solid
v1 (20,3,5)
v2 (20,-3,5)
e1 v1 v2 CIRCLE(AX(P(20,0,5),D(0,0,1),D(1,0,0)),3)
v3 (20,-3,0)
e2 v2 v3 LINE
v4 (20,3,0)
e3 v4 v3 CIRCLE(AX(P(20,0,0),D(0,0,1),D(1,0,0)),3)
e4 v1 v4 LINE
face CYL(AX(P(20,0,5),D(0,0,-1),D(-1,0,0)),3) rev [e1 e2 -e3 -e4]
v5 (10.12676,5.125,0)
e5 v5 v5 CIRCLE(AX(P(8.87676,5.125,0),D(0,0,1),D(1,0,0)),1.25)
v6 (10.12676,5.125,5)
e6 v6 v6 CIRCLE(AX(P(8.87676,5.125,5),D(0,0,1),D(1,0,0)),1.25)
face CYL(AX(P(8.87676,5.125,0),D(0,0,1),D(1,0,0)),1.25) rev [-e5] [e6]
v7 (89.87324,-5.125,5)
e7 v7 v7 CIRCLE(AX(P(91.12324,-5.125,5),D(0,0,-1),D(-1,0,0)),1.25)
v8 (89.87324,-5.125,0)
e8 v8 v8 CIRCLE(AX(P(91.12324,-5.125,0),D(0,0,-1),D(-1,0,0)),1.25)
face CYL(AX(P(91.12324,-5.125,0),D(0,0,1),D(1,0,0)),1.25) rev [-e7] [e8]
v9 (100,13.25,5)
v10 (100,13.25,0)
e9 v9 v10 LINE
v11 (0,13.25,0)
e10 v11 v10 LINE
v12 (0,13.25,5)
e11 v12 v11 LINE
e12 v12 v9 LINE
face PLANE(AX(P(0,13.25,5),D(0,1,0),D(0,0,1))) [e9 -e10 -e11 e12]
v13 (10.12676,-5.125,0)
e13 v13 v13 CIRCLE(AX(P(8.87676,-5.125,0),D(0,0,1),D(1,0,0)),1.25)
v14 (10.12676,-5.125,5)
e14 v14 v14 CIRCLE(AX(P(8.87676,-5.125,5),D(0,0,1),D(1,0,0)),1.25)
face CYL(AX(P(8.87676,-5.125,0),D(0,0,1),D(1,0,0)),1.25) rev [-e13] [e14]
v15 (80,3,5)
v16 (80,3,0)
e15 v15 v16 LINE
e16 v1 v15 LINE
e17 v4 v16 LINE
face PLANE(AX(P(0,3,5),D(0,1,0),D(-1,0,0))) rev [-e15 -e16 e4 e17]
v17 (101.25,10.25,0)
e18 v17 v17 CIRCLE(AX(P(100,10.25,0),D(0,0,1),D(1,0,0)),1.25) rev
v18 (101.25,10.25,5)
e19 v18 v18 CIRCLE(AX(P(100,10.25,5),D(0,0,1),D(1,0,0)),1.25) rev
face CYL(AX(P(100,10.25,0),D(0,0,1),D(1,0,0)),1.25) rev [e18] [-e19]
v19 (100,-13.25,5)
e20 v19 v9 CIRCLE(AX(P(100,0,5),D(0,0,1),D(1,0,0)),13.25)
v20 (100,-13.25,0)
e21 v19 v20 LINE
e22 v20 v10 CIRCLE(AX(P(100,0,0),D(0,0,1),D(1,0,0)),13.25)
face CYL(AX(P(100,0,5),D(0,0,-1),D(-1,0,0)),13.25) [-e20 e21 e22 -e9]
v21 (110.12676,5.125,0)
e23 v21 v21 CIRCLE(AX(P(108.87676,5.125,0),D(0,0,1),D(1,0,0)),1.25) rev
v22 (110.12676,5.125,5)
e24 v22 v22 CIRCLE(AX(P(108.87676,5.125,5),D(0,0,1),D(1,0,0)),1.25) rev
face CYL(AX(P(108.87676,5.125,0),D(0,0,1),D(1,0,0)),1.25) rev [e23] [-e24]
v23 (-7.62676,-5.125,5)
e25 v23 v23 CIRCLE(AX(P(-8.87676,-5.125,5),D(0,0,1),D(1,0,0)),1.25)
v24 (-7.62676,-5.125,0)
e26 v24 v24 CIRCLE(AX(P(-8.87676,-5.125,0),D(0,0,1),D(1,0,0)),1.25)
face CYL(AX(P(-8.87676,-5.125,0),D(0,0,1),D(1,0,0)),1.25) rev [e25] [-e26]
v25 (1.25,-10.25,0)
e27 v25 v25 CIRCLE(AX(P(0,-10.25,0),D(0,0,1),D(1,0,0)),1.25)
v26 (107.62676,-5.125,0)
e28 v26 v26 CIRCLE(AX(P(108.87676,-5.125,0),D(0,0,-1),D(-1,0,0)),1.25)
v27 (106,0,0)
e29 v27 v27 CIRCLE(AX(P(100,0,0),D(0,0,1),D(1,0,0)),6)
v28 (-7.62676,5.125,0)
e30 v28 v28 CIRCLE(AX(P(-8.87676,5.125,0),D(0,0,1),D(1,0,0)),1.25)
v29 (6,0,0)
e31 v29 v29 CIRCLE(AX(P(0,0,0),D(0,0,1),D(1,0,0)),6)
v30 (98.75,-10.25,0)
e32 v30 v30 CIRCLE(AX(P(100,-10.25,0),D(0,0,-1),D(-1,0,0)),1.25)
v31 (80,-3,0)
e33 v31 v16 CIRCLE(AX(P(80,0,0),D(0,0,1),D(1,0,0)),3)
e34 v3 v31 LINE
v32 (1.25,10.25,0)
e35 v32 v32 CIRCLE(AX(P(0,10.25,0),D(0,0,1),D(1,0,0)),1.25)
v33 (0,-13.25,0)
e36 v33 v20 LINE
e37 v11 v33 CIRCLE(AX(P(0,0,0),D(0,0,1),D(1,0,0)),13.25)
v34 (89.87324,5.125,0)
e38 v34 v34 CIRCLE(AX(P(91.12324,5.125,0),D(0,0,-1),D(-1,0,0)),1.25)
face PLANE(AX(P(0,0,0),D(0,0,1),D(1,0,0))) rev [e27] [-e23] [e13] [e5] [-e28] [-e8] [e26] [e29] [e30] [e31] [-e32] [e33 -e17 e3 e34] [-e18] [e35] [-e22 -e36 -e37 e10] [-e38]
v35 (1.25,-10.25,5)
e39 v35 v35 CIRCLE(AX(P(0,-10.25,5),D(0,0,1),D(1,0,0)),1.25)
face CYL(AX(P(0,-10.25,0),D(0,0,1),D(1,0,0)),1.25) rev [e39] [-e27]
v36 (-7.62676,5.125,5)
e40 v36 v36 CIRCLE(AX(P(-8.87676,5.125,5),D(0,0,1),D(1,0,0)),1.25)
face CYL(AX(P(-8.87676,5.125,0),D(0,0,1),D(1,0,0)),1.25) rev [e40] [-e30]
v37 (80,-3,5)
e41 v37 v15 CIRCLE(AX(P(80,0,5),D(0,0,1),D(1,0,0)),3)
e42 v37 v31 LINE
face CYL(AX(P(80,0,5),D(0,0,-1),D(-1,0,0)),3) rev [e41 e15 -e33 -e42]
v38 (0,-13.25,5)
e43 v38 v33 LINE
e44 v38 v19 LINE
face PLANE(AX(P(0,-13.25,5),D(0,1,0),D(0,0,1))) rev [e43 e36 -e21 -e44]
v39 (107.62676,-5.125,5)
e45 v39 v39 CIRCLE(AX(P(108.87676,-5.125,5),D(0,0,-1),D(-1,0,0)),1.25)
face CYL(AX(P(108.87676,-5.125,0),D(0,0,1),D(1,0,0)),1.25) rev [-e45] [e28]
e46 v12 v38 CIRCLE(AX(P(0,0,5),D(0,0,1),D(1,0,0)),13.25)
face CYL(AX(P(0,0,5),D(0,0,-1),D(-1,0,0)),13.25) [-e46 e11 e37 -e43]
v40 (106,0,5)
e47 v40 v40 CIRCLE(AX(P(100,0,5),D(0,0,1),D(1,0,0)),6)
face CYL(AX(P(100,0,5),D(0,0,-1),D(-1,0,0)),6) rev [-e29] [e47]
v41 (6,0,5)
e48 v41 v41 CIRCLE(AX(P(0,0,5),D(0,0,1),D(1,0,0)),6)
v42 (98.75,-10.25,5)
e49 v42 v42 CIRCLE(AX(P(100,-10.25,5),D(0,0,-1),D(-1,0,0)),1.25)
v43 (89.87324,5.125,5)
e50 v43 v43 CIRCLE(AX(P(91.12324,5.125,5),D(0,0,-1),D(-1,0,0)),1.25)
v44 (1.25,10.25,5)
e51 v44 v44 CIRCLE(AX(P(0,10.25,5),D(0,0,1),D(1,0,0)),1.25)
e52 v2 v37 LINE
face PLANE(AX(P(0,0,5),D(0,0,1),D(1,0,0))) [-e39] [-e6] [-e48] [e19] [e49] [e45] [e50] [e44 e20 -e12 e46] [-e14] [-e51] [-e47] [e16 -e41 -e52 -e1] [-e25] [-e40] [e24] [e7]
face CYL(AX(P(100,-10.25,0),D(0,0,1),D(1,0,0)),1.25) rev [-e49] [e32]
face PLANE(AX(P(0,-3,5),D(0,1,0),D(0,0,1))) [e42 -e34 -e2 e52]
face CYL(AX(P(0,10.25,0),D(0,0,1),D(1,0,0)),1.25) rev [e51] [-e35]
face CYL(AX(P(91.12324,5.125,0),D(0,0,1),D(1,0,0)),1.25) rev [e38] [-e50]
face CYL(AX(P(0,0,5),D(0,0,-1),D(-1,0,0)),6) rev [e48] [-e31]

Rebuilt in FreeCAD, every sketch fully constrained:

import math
import FreeCAD as App
import Part
import Sketcher

doc = App.newDocument("Part")
body = doc.addObject("PartDesign::Body", "Body")

sketch1 = body.newObject("Sketcher::SketchObject", "Sketch")
sketch1.AttachmentSupport = (doc.getObject("XY_Plane"), [""])
sketch1.MapMode = "FlatFace"
sketch1.addGeometry(Part.ArcOfCircle(Part.Circle(App.Vector(0, 0, 0), App.Vector(0, 0, 1), 13.2), math.radians(90), math.radians(270)), False)
sketch1.addGeometry(Part.LineSegment(App.Vector(0, -13.2, 0), App.Vector(100, -13.2, 0)), False)
sketch1.addGeometry(Part.ArcOfCircle(Part.Circle(App.Vector(100, 0, 0), App.Vector(0, 0, 1), 13.2), math.radians(-90), math.radians(90)), False)
sketch1.addGeometry(Part.LineSegment(App.Vector(100, 13.2, 0), App.Vector(0, 13.2, 0)), False)
sketch1.addGeometry(Part.ArcOfCircle(Part.Circle(App.Vector(80, 0, 0), App.Vector(0, 0, 1), 3), math.radians(-90), math.radians(0)), False)
sketch1.addGeometry(Part.LineSegment(App.Vector(80, -3, 0), App.Vector(20, -3, 0)), False)
sketch1.addGeometry(Part.ArcOfCircle(Part.Circle(App.Vector(20, 0, 0), App.Vector(0, 0, 1), 3), math.radians(90), math.radians(270)), False)
sketch1.addGeometry(Part.LineSegment(App.Vector(20, 3, 0), App.Vector(80, 3, 0)), False)
sketch1.addGeometry(Part.ArcOfCircle(Part.Circle(App.Vector(80, 0, 0), App.Vector(0, 0, 1), 3), math.radians(0), math.radians(90)), False)
sketch1.addGeometry(Part.Circle(App.Vector(0, 0, 0), App.Vector(0, 0, 1), 6), False)
sketch1.addGeometry(Part.Circle(App.Vector(100, 0, 0), App.Vector(0, 0, 1), 6), False)
sketch1.addConstraint(Sketcher.Constraint("Tangent", 0, 2, 1, 1))
sketch1.addConstraint(Sketcher.Constraint("Tangent", 1, 2, 2, 1))
sketch1.addConstraint(Sketcher.Constraint("Tangent", 2, 2, 3, 1))
sketch1.addConstraint(Sketcher.Constraint("Tangent", 3, 2, 0, 1))
sketch1.addConstraint(Sketcher.Constraint("Tangent", 4, 1, 5, 1))
sketch1.addConstraint(Sketcher.Constraint("Tangent", 5, 2, 6, 2))
sketch1.addConstraint(Sketcher.Constraint("Tangent", 6, 1, 7, 1))
sketch1.addConstraint(Sketcher.Constraint("Tangent", 7, 2, 8, 2))
sketch1.addConstraint(Sketcher.Constraint("Tangent", 8, 1, 4, 2))
sketch1.addConstraint(Sketcher.Constraint("Horizontal", 1))
sketch1.addConstraint(Sketcher.Constraint("Horizontal", 3))
sketch1.addConstraint(Sketcher.Constraint("Horizontal", 5))
sketch1.addConstraint(Sketcher.Constraint("Horizontal", 7))
sketch1.addConstraint(Sketcher.Constraint("Coincident", 0, 3, -1, 1))
sketch1.addConstraint(Sketcher.Constraint("Coincident", 9, 3, -1, 1))
sketch1.addConstraint(Sketcher.Constraint("Coincident", 10, 3, 2, 3))
sketch1.addConstraint(Sketcher.Constraint("Equal", 4, 6))
sketch1.addConstraint(Sketcher.Constraint("Equal", 9, 10))
sketch1.addConstraint(Sketcher.Constraint("PointOnObject", 4, 3, -1))
sketch1.addConstraint(Sketcher.Constraint("PointOnObject", 8, 1, -1))
sketch1.addConstraint(Sketcher.Constraint("Diameter", 9, 12.0))
sketch1.addConstraint(Sketcher.Constraint("Radius", 4, 3.0))
sketch1.addConstraint(Sketcher.Constraint("DistanceX", 1, 1, 1, 2, 100.0))
sketch1.addConstraint(Sketcher.Constraint("DistanceX", 5, 2, 5, 1, 60.0))
sketch1.addConstraint(Sketcher.Constraint("Radius", 0, 13.25))
sketch1.addConstraint(Sketcher.Constraint("DistanceX", -1, 1, 4, 3, 80.0))
pad1 = body.newObject("PartDesign::Pad", "Pad")
pad1.Profile = sketch1
pad1.Length = 5

sketch2 = body.newObject("Sketcher::SketchObject", "Sketch001")
sketch2.AttachmentSupport = (doc.getObject("XY_Plane"), [""])
sketch2.MapMode = "FlatFace"
sketch2.AttachmentOffset = App.Placement(App.Vector(0, 0, 5), App.Rotation())
sketch2.addGeometry(Part.Circle(App.Vector(100, 10.2, 0), App.Vector(0, 0, 1), 1.2), False)
sketch2.addGeometry(Part.Circle(App.Vector(108.9, 5.1, 0), App.Vector(0, 0, 1), 1.2), False)
sketch2.addGeometry(Part.Circle(App.Vector(8.9, 5.1, 0), App.Vector(0, 0, 1), 1.2), False)
sketch2.addGeometry(Part.Circle(App.Vector(8.9, -5.1, 0), App.Vector(0, 0, 1), 1.2), False)
sketch2.addGeometry(Part.Circle(App.Vector(-8.9, 5.1, 0), App.Vector(0, 0, 1), 1.2), False)
sketch2.addGeometry(Part.Circle(App.Vector(-8.9, -5.1, 0), App.Vector(0, 0, 1), 1.2), False)
sketch2.addGeometry(Part.Circle(App.Vector(0, -10.2, 0), App.Vector(0, 0, 1), 1.2), False)
sketch2.addGeometry(Part.Circle(App.Vector(0, 10.2, 0), App.Vector(0, 0, 1), 1.2), False)
sketch2.addGeometry(Part.Circle(App.Vector(91.1, 5.1, 0), App.Vector(0, 0, 1), 1.2), False)
sketch2.addGeometry(Part.Circle(App.Vector(108.9, -5.1, 0), App.Vector(0, 0, 1), 1.2), False)
sketch2.addGeometry(Part.Circle(App.Vector(100, -10.2, 0), App.Vector(0, 0, 1), 1.2), False)
sketch2.addGeometry(Part.Circle(App.Vector(91.1, -5.1, 0), App.Vector(0, 0, 1), 1.2), False)
sketch2.addConstraint(Sketcher.Constraint("Equal", 0, 1))
sketch2.addConstraint(Sketcher.Constraint("Equal", 1, 2))
sketch2.addConstraint(Sketcher.Constraint("Equal", 2, 3))
sketch2.addConstraint(Sketcher.Constraint("Equal", 3, 4))
sketch2.addConstraint(Sketcher.Constraint("Equal", 4, 5))
sketch2.addConstraint(Sketcher.Constraint("Equal", 5, 6))
sketch2.addConstraint(Sketcher.Constraint("Equal", 6, 7))
sketch2.addConstraint(Sketcher.Constraint("Equal", 7, 8))
sketch2.addConstraint(Sketcher.Constraint("Equal", 8, 9))
sketch2.addConstraint(Sketcher.Constraint("Equal", 9, 10))
sketch2.addConstraint(Sketcher.Constraint("Equal", 10, 11))
sketch2.addConstraint(Sketcher.Constraint("Symmetric", 3, 3, 4, 3, -1, 1))
sketch2.addConstraint(Sketcher.Constraint("Symmetric", 2, 3, 5, 3, -1, 1))
sketch2.addConstraint(Sketcher.Constraint("Symmetric", 6, 3, 7, 3, -1, 1))
sketch2.addConstraint(Sketcher.Constraint("Symmetric", 2, 3, 4, 3, -2))
sketch2.addConstraint(Sketcher.Constraint("Symmetric", 1, 3, 9, 3, -1))
sketch2.addConstraint(Sketcher.Constraint("Symmetric", 0, 3, 10, 3, -1))
sketch2.addConstraint(Sketcher.Constraint("Symmetric", 8, 3, 11, 3, -1))
sketch2.addConstraint(Sketcher.Constraint("PointOnObject", 6, 3, -2))
sketch2.addConstraint(Sketcher.Constraint("Horizontal", 1, 3, 2, 3))
sketch2.addConstraint(Sketcher.Constraint("Horizontal", 0, 3, 7, 3))
sketch2.addConstraint(Sketcher.Constraint("Horizontal", 4, 3, 8, 3))
sketch2.addConstraint(Sketcher.Constraint("Diameter", 0, 2.5))
sketch2.addConstraint(Sketcher.Constraint("DistanceX", -1, 1, 0, 3, 100.0))
sketch2.addConstraint(Sketcher.Constraint("DistanceX", 2, 3, 1, 3, 100.0))
sketch2.addConstraint(Sketcher.Constraint("DistanceY", 6, 3, 0, 3, 20.5))
sketch2.addConstraint(Sketcher.Constraint("DistanceY", 3, 3, 2, 3, 10.25))
sketch2.addConstraint(Sketcher.Constraint("DistanceX", -1, 1, 1, 3, 108.87676))
sketch2.addConstraint(Sketcher.Constraint("DistanceX", -1, 1, 8, 3, 91.12324))
pocket1 = body.newObject("PartDesign::Pocket", "Pocket")
pocket1.Profile = sketch2
pocket1.Type = "ThroughAll"

doc.recompute()
